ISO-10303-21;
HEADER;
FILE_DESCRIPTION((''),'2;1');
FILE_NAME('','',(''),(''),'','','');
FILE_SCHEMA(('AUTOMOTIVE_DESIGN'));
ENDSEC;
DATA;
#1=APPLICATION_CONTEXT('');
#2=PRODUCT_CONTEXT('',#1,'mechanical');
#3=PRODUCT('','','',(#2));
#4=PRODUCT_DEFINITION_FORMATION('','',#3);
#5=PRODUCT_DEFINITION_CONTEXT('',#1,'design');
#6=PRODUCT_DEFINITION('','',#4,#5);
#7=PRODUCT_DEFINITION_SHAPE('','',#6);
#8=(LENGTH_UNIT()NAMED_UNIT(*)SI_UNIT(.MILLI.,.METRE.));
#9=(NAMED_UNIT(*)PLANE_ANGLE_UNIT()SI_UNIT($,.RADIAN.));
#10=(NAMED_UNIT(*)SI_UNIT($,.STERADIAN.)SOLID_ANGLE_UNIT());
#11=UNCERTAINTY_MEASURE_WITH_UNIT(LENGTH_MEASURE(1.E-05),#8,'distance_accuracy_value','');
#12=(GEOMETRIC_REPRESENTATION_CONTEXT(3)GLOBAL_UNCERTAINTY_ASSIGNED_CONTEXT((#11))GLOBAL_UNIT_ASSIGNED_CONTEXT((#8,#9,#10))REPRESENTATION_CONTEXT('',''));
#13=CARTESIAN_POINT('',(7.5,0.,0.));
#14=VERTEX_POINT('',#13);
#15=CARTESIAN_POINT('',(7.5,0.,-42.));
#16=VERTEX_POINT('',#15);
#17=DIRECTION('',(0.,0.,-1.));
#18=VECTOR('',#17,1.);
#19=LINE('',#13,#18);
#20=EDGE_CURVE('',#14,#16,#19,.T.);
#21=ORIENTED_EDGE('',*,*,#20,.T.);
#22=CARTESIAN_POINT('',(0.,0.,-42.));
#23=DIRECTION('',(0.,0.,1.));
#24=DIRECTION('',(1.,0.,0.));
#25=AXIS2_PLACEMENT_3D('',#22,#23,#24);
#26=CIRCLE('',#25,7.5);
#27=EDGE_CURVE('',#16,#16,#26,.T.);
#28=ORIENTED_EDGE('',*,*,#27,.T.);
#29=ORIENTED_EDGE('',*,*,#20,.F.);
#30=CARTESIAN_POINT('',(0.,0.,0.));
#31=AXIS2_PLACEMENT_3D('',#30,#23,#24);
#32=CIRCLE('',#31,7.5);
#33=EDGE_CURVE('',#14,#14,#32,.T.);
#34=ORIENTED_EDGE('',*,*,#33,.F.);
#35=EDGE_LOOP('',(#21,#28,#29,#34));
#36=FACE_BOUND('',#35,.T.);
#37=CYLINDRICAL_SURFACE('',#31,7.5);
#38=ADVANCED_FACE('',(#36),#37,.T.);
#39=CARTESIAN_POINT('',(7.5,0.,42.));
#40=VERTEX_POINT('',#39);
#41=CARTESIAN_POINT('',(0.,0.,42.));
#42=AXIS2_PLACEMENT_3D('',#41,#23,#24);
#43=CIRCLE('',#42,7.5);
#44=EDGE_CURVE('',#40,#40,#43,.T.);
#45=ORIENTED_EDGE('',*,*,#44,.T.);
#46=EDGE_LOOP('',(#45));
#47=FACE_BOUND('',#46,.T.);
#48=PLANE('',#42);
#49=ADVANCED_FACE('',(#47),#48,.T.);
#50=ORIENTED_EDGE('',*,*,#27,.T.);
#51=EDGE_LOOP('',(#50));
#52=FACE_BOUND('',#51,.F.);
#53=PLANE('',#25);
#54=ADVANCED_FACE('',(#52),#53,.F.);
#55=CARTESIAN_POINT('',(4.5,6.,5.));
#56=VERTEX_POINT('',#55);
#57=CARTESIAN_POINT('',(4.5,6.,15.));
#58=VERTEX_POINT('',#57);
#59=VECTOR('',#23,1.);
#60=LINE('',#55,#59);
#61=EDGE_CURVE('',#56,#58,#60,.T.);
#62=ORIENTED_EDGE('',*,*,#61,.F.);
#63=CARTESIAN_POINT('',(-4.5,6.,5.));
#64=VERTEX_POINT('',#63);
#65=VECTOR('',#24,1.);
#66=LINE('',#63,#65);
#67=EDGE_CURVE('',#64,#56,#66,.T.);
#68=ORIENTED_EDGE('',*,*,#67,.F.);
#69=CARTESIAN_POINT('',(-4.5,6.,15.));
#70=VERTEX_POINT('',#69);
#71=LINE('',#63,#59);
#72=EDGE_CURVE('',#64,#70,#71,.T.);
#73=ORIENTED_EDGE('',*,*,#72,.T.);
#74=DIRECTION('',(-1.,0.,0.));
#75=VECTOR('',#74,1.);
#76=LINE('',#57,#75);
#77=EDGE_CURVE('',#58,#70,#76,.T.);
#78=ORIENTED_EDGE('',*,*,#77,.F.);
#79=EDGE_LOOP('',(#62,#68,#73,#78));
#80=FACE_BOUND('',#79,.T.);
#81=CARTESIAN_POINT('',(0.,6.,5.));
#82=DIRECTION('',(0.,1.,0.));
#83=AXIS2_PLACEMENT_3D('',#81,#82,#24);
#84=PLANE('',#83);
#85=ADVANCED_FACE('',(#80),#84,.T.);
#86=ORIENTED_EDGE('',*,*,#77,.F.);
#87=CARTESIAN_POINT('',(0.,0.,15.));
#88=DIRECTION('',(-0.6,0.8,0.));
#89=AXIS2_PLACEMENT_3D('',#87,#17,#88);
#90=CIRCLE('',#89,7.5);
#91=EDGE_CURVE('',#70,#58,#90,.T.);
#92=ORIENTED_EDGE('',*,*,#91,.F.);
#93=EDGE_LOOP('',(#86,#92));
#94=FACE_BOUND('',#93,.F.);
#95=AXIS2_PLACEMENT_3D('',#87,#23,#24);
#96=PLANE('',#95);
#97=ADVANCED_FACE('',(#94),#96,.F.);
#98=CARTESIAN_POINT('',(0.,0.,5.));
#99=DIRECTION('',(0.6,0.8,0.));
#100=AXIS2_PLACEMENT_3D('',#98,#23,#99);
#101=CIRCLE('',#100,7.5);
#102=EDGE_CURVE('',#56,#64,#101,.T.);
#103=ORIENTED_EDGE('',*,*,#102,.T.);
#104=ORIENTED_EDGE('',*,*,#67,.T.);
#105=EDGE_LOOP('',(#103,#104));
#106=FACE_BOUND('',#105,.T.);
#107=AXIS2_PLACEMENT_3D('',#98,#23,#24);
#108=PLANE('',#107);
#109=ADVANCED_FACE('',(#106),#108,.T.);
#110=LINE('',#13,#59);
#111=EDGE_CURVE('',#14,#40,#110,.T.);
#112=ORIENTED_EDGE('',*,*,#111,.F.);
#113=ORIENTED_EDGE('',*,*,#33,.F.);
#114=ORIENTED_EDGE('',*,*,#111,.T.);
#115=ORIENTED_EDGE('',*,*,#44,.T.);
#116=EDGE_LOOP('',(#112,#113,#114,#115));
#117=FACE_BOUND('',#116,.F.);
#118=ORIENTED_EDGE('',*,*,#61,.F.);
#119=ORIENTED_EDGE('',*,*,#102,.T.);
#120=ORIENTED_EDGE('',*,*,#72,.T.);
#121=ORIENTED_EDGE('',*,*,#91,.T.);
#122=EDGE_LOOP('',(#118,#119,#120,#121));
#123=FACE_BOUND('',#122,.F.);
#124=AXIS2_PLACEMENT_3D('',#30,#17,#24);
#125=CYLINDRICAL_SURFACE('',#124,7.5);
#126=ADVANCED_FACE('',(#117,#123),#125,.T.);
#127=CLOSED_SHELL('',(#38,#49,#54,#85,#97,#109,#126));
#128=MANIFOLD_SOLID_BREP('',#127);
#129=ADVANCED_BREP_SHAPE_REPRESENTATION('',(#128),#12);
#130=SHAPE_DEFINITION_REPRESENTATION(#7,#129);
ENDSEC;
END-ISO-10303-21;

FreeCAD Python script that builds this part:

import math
import FreeCAD as App
import Part
import Sketcher

V = App.Vector
Q = App.Units.Quantity

doc = App.newDocument("Part")
params = doc.addObject("Spreadsheet::Sheet", "Params")
for row, (alias, value) in enumerate([
    ("sketch1_diameter", "15 mm"),
    ("pad1_length", "84 mm"),
    ("sketch2_radius", "7.5 mm"),
    ("sketch2_width", "9 mm"),
    ("pocket1_length", "10 mm"),
], start=1):
    params.set(f"A{row}", alias)
    params.set(f"B{row}", "=" + value)
    params.setAlias(f"B{row}", alias)

body = doc.addObject("PartDesign::Body", "Body")

# Sketch on XY plane
sketch1 = body.newObject("Sketcher::SketchObject", "Sketch")
sketch1.AttachmentSupport = (doc.getObject("XY_Plane"), [""])
sketch1.MapMode = "FlatFace"
sketch1.addGeometry(Part.Circle(V(0, 0, 0), V(0, 0, 1), 8), False)
sketch1.addConstraint(Sketcher.Constraint("Coincident", 0, 3, -1, 1))
sketch1.addConstraint(Sketcher.Constraint("Diameter", 0, Q("15 mm")))
sketch1.setExpression("Constraints[1]", "Params.sketch1_diameter")
pad1 = body.newObject("PartDesign::Pad", "Pad")
pad1.Profile = sketch1
pad1.setExpression("Length", "Params.pad1_length")
pad1.Midplane = True

# Sketch on XY plane
sketch2 = body.newObject("Sketcher::SketchObject", "Sketch001")
sketch2.AttachmentSupport = (doc.getObject("XY_Plane"), [""])
sketch2.MapMode = "FlatFace"
sketch2.AttachmentOffset = App.Placement(V(0, 0, 5), App.Rotation())
sketch2.addGeometry(Part.ArcOfCircle(Part.Circle(V(0, 0, 0), V(0, 0, 1), 8), math.radians(53), math.radians(127)), False)
sketch2.addGeometry(Part.LineSegment(V(-4, 6, 0), V(4, 6, 0)), False)
sketch2.addConstraint(Sketcher.Constraint("Coincident", 0, 1, 1, 2))
sketch2.addConstraint(Sketcher.Constraint("Coincident", 1, 1, 0, 2))
sketch2.addConstraint(Sketcher.Constraint("Horizontal", 1))
sketch2.addConstraint(Sketcher.Constraint("Coincident", 0, 3, -1, 1))
sketch2.addConstraint(Sketcher.Constraint("Radius", 0, Q("7.5 mm")))
sketch2.addConstraint(Sketcher.Constraint("DistanceX", 1, 1, 1, 2, Q("9 mm")))
sketch2.setExpression("Constraints[4]", "Params.sketch2_radius")
sketch2.setExpression("Constraints[5]", "Params.sketch2_width")
pocket1 = body.newObject("PartDesign::Pocket", "Pocket")
pocket1.Profile = sketch2
pocket1.setExpression("Length", "Params.pocket1_length")
pocket1.Reversed = True

doc.recompute()
